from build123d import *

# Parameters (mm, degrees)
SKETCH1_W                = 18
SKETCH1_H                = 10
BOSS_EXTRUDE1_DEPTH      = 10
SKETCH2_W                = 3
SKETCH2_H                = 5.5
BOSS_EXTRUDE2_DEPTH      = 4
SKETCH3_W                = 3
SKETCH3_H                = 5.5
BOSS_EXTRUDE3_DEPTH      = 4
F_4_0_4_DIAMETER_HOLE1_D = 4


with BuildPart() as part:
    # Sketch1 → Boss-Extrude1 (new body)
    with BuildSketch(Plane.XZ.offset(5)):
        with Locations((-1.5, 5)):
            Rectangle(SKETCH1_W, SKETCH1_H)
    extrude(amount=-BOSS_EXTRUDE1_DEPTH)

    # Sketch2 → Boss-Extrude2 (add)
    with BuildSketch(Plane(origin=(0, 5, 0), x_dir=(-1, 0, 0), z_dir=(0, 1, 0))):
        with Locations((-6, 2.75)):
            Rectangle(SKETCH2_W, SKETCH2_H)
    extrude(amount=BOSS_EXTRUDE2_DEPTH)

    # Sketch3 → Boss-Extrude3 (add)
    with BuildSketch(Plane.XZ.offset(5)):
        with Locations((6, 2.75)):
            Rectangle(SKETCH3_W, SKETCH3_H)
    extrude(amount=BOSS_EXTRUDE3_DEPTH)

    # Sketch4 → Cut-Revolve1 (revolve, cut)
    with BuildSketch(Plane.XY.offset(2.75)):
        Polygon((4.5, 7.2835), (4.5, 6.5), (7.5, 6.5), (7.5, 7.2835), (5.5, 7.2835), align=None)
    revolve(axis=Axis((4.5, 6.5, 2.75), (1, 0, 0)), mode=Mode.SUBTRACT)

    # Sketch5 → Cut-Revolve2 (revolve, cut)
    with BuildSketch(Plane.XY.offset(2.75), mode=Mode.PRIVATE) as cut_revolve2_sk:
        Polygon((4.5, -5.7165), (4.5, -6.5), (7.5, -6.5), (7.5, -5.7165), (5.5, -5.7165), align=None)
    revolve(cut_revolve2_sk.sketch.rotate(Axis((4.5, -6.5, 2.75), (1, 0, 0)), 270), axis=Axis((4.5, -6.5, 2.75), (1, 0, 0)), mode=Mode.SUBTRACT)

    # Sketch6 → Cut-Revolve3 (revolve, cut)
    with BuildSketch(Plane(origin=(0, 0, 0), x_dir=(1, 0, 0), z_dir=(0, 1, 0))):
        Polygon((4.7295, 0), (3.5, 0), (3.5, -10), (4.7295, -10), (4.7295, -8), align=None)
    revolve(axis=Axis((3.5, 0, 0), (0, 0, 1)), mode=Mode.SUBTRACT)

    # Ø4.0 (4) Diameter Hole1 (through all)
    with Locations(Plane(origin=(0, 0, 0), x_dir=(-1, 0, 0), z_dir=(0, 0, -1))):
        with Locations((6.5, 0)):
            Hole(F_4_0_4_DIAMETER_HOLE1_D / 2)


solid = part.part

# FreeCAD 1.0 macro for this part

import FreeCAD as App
import Part
import Sketcher
from FreeCAD import Vector


def add_polygon(sketch, points):
    """Adds a closed chain of lines whose ends are joined by coincident constraints."""
    first, n = sketch.GeometryCount, len(points)
    for a, b in zip(points, points[1:] + points[:1]):
        sketch.addGeometry(Part.LineSegment(App.Vector(*a, 0), App.Vector(*b, 0)), False)
    for i in range(n):
        sketch.addConstraint(Sketcher.Constraint("Coincident", first + i, 2, first + (i + 1) % n, 1))

doc = App.newDocument("Part")
body = doc.addObject("PartDesign::Body", "Body")

sketch1 = body.newObject("Sketcher::SketchObject", "Sketch")
sketch1.AttachmentSupport = (doc.getObject("XZ_Plane"), [""])
sketch1.MapMode = "FlatFace"
sketch1.AttachmentOffset = App.Placement(Vector(0, 0, 5), App.Rotation())
add_polygon(sketch1, [(-10, 10), (-10, 0), (8, 0), (8, 10)])
sketch1.addConstraint([
    Sketcher.Constraint("Vertical", 0),
    Sketcher.Constraint("Horizontal", 1),
    Sketcher.Constraint("Vertical", 2),
    Sketcher.Constraint("Horizontal", 3),
    Sketcher.Constraint("PointOnObject", 0, 2, -1),
    Sketcher.Constraint("DistanceX", 1, 1, 1, 2, 18.0),
    Sketcher.Constraint("DistanceY", 0, 2, 0, 1, 10.0),
    Sketcher.Constraint("DistanceX", 0, 2, -1, 1, 10.5),
])
pad1 = body.newObject("PartDesign::Pad", "Pad")
pad1.Profile = sketch1
pad1.Length = 10
pad1.Reversed = True

sketch2 = body.newObject("Sketcher::SketchObject", "Sketch001")
sketch2.AttachmentSupport = (doc.getObject("XZ_Plane"), [""])
sketch2.MapMode = "FlatFace"
sketch2.AttachmentOffset = App.Placement(Vector(0, 0, -5), App.Rotation())
add_polygon(sketch2, [(7.5, 5.5), (7.5, 0), (4.5, 0), (4.5, 5.5)])
sketch2.addConstraint([
    Sketcher.Constraint("Vertical", 0),
    Sketcher.Constraint("Horizontal", 1),
    Sketcher.Constraint("Vertical", 2),
    Sketcher.Constraint("Horizontal", 3),
    Sketcher.Constraint("PointOnObject", 0, 2, -1),
    Sketcher.Constraint("DistanceX", 1, 2, 1, 1, 3.0),
    Sketcher.Constraint("DistanceY", 0, 2, 0, 1, 5.5),
    Sketcher.Constraint("DistanceX", -1, 1, 0, 2, 7.5),
])
pad2 = body.newObject("PartDesign::Pad", "Pad001")
pad2.Profile = sketch2
pad2.Length = 4
pad2.Reversed = True

sketch3 = body.newObject("Sketcher::SketchObject", "Sketch002")
sketch3.AttachmentSupport = (doc.getObject("XZ_Plane"), [""])
sketch3.MapMode = "FlatFace"
sketch3.AttachmentOffset = App.Placement(Vector(0, 0, 5), App.Rotation())
add_polygon(sketch3, [(4.5, 5.5), (4.5, 0), (7.5, 0), (7.5, 5.5)])
sketch3.addConstraint([
    Sketcher.Constraint("Vertical", 0),
    Sketcher.Constraint("Horizontal", 1),
    Sketcher.Constraint("Vertical", 2),
    Sketcher.Constraint("Horizontal", 3),
    Sketcher.Constraint("PointOnObject", 0, 2, -1),
    Sketcher.Constraint("DistanceX", 1, 1, 1, 2, 3.0),
    Sketcher.Constraint("DistanceY", 0, 2, 0, 1, 5.5),
    Sketcher.Constraint("DistanceX", -1, 1, 0, 2, 4.5),
])
pad3 = body.newObject("PartDesign::Pad", "Pad002")
pad3.Profile = sketch3
pad3.Length = 4

sketch4 = body.newObject("Sketcher::SketchObject", "Sketch003")
sketch4.AttachmentSupport = (doc.getObject("XY_Plane"), [""])
sketch4.MapMode = "FlatFace"
sketch4.AttachmentOffset = App.Placement(Vector(0, 0, 2.75), App.Rotation())
add_polygon(sketch4, [(4.5, 7.3), (4.5, 6.5), (7.5, 6.5), (7.5, 7.3)])
sketch4.addGeometry(Part.LineSegment(Vector(4.5, 6.5, 0), Vector(7.5, 6.5, 0)), True)
sketch4.addConstraint([
    Sketcher.Constraint("Vertical", 0),
    Sketcher.Constraint("Horizontal", 1),
    Sketcher.Constraint("Vertical", 2),
    Sketcher.Constraint("Horizontal", 3),
    Sketcher.Constraint("Horizontal", 4),
    Sketcher.Constraint("Coincident", 4, 1, 0, 2),
    Sketcher.Constraint("Vertical", 2, 2, 4, 2),
    Sketcher.Constraint("DistanceX", 1, 1, 1, 2, 3.0),
    Sketcher.Constraint("DistanceX", -1, 1, 0, 2, 4.5),
    Sketcher.Constraint("DistanceY", -1, 1, 0, 2, 6.5),
    Sketcher.Constraint("DistanceY", 0, 2, 0, 1, 0.7835),
])
groove = body.newObject("PartDesign::Groove", "Groove")
groove.Profile = sketch4
groove.ReferenceAxis = (sketch4, ["Axis0"])
groove.Angle = 360

sketch5 = body.newObject("Sketcher::SketchObject", "Sketch004")
sketch5.AttachmentSupport = (doc.getObject("XY_Plane"), [""])
sketch5.MapMode = "FlatFace"
sketch5.AttachmentOffset = App.Placement(Vector(0, 0, 2.75), App.Rotation())
add_polygon(sketch5, [(4.5, -5.7), (4.5, -6.5), (7.5, -6.5), (7.5, -5.7)])
sketch5.addGeometry(Part.LineSegment(Vector(4.5, -6.5, 0), Vector(7.5, -6.5, 0)), True)
sketch5.addConstraint([
    Sketcher.Constraint("Vertical", 0),
    Sketcher.Constraint("Horizontal", 1),
    Sketcher.Constraint("Vertical", 2),
    Sketcher.Constraint("Horizontal", 3),
    Sketcher.Constraint("Horizontal", 4),
    Sketcher.Constraint("Coincident", 4, 1, 0, 2),
    Sketcher.Constraint("Vertical", 2, 2, 4, 2),
    Sketcher.Constraint("DistanceX", 1, 1, 1, 2, 3.0),
    Sketcher.Constraint("DistanceX", -1, 1, 0, 2, 4.5),
    Sketcher.Constraint("DistanceY", 0, 2, -1, 1, 6.5),
    Sketcher.Constraint("DistanceY", 0, 2, 0, 1, 0.7835),
])
groove2 = body.newObject("PartDesign::Groove", "Groove001")
groove2.Profile = sketch5
groove2.ReferenceAxis = (sketch5, ["Axis0"])
groove2.Angle = 360

sketch6 = body.newObject("Sketcher::SketchObject", "Sketch005")
sketch6.AttachmentSupport = (doc.getObject("XZ_Plane"), [""])
sketch6.MapMode = "FlatFace"
add_polygon(sketch6, [(4.7, 0), (3.5, 0), (3.5, 10), (4.7, 10)])
sketch6.addGeometry(Part.LineSegment(Vector(3.5, 0, 0), Vector(3.5, 10, 0)), True)
sketch6.addConstraint([
    Sketcher.Constraint("Horizontal", 0),
    Sketcher.Constraint("Vertical", 1),
    Sketcher.Constraint("Horizontal", 2),
    Sketcher.Constraint("Vertical", 3),
    Sketcher.Constraint("Vertical", 4),
    Sketcher.Constraint("Coincident", 4, 1, 0, 2),
    Sketcher.Constraint("PointOnObject", 0, 2, -1),
    Sketcher.Constraint("Horizontal", 2, 2, 4, 2),
    Sketcher.Constraint("DistanceY", 1, 1, 1, 2, 10.0),
    Sketcher.Constraint("DistanceX", -1, 1, 0, 2, 3.5),
    Sketcher.Constraint("DistanceX", 0, 2, 0, 1, 1.2295),
])
groove3 = body.newObject("PartDesign::Groove", "Groove002")
groove3.Profile = sketch6
groove3.ReferenceAxis = (sketch6, ["Axis0"])
groove3.Angle = 360

sketch7 = body.newObject("Sketcher::SketchObject", "Sketch006")
sketch7.AttachmentSupport = (doc.getObject("XY_Plane"), [""])
sketch7.MapMode = "FlatFace"
sketch7.addGeometry(Part.Circle(Vector(-6.5, 0, 0), Vector(0, 0, 1), 2), False)
sketch7.addConstraint([
    Sketcher.Constraint("PointOnObject", 0, 3, -1),
    Sketcher.Constraint("Diameter", 0, 4.0),
    Sketcher.Constraint("DistanceX", 0, 3, -1, 1, 6.5),
])
doc.recompute()
hole = body.newObject("PartDesign::Hole", "Hole")
hole.Profile = sketch7
hole.ThreadType = "None"
hole.Diameter = 4
hole.DepthType = "ThroughAll"
hole.Reversed = True

doc.recompute()
